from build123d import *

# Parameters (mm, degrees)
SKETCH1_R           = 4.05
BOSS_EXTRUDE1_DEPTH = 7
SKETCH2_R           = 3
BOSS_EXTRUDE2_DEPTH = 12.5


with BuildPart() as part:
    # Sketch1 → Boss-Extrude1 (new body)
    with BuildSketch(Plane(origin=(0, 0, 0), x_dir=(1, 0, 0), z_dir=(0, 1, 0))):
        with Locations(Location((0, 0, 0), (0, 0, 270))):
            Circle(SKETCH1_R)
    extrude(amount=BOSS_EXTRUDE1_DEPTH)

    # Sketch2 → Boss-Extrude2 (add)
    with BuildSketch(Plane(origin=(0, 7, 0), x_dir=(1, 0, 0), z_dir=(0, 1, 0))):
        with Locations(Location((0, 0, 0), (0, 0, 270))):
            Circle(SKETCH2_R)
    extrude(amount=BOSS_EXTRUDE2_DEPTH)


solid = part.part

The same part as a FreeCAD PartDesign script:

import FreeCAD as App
import Part
import Sketcher

V = App.Vector
Q = App.Units.Quantity

doc = App.newDocument("Part")
params = doc.addObject("Spreadsheet::Sheet", "Params")
for row, (alias, value) in enumerate([
    ("sketch1_diameter", "8.1 mm"),
    ("pad1_length", "7 mm"),
    ("sketch2_diameter", "6 mm"),
    ("pad2_length", "12.5 mm"),
], start=1):
    params.set(f"A{row}", alias)
    params.set(f"B{row}", "=" + value)
    params.setAlias(f"B{row}", alias)

body = doc.addObject("PartDesign::Body", "Body")

sketch1 = body.newObject("Sketcher::SketchObject", "Sketch")
sketch1.AttachmentSupport = (doc.getObject("XZ_Plane"), [""])
sketch1.MapMode = "FlatFace"
sketch1.addGeometry(Part.Circle(V(0, 0, 0), V(0, 0, 1), 4), False)
sketch1.addConstraint([
    Sketcher.Constraint("Coincident", 0, 3, -1, 1),
    Sketcher.Constraint("Diameter", 0, Q("8.1 mm")),
])
sketch1.setExpression("Constraints[1]", "Params.sketch1_diameter")
pad1 = body.newObject("PartDesign::Pad", "Pad")
pad1.Profile = sketch1
pad1.setExpression("Length", "Params.pad1_length")
pad1.Reversed = True

sketch2 = body.newObject("Sketcher::SketchObject", "Sketch001")
sketch2.AttachmentSupport = (doc.getObject("XZ_Plane"), [""])
sketch2.MapMode = "FlatFace"
sketch2.AttachmentOffset = App.Placement(V(0, 0, -7), App.Rotation())
sketch2.addGeometry(Part.Circle(V(0, 0, 0), V(0, 0, 1), 3), False)
sketch2.addConstraint([
    Sketcher.Constraint("Coincident", 0, 3, -1, 1),
    Sketcher.Constraint("Diameter", 0, Q("6 mm")),
])
sketch2.setExpression("Constraints[1]", "Params.sketch2_diameter")
pad2 = body.newObject("PartDesign::Pad", "Pad001")
pad2.Profile = sketch2
pad2.setExpression("Length", "Params.pad2_length")
pad2.Reversed = True

doc.recompute()
